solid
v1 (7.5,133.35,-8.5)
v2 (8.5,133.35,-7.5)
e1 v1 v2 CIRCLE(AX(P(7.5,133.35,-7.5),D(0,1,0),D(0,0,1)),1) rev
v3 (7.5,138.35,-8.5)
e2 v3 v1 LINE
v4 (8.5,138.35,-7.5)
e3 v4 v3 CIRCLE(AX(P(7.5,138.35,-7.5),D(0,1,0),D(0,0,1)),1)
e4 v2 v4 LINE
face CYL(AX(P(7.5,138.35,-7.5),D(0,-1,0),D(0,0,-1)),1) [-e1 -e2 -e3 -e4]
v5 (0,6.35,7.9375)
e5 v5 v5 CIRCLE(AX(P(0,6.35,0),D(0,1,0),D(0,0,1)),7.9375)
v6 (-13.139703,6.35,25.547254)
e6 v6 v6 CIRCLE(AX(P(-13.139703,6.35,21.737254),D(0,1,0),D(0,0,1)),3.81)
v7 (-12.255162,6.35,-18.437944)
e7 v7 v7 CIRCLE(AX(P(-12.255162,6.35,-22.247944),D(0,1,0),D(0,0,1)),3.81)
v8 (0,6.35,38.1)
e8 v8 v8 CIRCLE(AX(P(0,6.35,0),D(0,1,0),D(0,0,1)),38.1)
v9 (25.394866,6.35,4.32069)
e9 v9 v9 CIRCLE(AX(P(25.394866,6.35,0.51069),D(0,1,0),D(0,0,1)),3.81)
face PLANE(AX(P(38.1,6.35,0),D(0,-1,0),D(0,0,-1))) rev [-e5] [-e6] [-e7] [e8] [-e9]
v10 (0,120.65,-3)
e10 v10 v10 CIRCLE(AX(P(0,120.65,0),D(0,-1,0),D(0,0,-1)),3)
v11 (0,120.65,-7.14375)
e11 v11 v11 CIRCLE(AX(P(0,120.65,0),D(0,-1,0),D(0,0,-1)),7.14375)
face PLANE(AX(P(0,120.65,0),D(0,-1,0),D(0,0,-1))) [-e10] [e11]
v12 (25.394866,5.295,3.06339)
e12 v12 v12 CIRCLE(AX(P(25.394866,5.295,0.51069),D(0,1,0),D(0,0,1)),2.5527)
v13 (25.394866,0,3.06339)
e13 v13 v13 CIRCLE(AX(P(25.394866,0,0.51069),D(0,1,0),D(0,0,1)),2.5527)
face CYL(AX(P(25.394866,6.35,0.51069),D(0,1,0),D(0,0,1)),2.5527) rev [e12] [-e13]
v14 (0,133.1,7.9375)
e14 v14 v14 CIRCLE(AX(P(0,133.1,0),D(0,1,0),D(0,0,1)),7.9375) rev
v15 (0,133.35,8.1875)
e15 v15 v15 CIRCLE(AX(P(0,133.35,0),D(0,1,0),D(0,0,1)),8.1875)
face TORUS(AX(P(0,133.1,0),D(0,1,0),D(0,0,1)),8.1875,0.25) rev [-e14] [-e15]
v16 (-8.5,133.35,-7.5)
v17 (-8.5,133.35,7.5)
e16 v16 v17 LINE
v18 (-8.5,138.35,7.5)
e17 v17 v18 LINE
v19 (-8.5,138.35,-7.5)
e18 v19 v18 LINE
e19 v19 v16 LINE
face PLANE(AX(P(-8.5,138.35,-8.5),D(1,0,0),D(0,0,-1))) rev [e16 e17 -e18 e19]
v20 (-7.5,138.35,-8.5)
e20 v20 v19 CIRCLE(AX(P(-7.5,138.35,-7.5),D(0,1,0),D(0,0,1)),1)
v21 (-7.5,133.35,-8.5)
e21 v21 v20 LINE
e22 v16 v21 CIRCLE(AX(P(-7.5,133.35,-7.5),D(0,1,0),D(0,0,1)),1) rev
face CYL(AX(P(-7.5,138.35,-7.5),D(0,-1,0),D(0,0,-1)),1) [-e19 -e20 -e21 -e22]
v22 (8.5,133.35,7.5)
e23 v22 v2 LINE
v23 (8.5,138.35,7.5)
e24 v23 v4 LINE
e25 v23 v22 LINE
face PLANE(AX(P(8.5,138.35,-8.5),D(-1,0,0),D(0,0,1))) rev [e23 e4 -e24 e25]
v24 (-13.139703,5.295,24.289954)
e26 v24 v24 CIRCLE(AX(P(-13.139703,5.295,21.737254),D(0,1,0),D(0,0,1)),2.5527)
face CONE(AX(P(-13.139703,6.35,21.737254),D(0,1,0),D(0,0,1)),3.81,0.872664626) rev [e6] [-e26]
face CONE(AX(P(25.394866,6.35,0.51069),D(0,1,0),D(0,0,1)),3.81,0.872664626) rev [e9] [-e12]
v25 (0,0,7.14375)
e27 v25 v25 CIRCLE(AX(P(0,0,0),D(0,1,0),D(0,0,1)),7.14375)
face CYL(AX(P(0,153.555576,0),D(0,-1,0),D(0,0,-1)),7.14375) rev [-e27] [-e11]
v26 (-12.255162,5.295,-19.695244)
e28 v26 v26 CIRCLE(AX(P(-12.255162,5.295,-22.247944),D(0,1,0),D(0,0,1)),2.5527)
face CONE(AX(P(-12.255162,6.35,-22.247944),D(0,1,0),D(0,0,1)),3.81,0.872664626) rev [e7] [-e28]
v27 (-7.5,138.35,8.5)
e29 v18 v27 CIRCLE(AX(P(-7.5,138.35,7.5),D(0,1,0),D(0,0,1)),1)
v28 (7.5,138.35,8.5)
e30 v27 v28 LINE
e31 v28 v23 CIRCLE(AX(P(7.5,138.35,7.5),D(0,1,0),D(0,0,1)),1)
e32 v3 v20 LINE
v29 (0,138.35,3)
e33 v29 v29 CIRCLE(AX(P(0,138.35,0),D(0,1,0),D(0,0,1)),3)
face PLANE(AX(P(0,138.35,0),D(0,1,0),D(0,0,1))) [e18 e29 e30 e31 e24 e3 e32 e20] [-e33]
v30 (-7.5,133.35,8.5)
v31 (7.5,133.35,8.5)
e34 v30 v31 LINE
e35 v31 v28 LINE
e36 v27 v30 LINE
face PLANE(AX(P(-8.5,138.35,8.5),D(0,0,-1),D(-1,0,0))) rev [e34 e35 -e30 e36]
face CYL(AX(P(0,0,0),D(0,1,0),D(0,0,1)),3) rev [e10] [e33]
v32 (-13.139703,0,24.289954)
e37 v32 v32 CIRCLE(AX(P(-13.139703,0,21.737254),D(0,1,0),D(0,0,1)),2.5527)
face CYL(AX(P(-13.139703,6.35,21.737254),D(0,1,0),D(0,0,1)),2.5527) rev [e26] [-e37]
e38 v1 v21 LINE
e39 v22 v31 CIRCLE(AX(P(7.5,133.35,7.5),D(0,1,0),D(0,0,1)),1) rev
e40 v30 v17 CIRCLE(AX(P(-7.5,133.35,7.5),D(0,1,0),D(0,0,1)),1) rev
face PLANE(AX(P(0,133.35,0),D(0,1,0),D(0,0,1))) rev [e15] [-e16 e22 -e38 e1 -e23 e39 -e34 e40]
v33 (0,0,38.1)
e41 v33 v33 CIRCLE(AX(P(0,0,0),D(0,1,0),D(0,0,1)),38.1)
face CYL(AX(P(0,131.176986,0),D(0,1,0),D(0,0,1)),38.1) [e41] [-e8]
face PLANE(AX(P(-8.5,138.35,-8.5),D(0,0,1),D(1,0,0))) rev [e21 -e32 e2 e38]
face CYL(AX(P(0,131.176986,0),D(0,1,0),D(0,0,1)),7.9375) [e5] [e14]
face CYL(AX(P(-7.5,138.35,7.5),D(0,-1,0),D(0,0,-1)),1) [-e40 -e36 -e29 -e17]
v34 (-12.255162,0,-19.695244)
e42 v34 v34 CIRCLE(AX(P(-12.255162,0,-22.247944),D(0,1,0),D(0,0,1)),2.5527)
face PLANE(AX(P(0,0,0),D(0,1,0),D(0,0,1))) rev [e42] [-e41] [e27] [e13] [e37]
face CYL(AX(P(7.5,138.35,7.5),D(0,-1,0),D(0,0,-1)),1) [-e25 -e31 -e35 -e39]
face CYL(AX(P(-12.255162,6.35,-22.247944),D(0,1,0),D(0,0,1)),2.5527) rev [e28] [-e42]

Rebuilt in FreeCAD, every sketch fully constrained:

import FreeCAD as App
import Part
import Sketcher

V = App.Vector
Q = App.Units.Quantity


def edges_at(feature, points):
    """Names of the edges that pass closest to the given points."""
    edges = feature.Shape.Edges
    near = lambda p: min(range(len(edges)), key=lambda i: edges[i].distToShape(Part.Vertex(*p))[0])
    return sorted({f"Edge{near(p) + 1}" for p in points})

doc = App.newDocument("Part")
body = doc.addObject("PartDesign::Body", "Body")

# Sketch on XY plane
sketch1 = body.newObject("Sketcher::SketchObject", "Sketch")
sketch1.AttachmentSupport = (doc.getObject("XY_Plane"), [""])
sketch1.MapMode = "FlatFace"
sketch1.addGeometry([
    Part.LineSegment(V(0, 0, 0), V(38, 0, 0)),  # 0
    Part.LineSegment(V(38, 0, 0), V(38, 6, 0)),  # 1
    Part.LineSegment(V(38, 6, 0), V(8, 6, 0)),  # 2
    Part.LineSegment(V(8, 6, 0), V(8, 133, 0)),  # 3
    Part.LineSegment(V(8, 133, 0), V(0, 133, 0)),  # 4
    Part.LineSegment(V(0, 133, 0), V(0, 0, 0)),  # 5
], False)
sketch1.addConstraint([
    Sketcher.Constraint("Coincident", 0, 2, 1, 1),
    Sketcher.Constraint("Coincident", 1, 2, 2, 1),
    Sketcher.Constraint("Coincident", 2, 2, 3, 1),
    Sketcher.Constraint("Coincident", 3, 2, 4, 1),
    Sketcher.Constraint("Coincident", 4, 2, 5, 1),
    Sketcher.Constraint("Coincident", 5, 2, 0, 1),
    Sketcher.Constraint("Horizontal", 0),
    Sketcher.Constraint("Vertical", 1),
    Sketcher.Constraint("Horizontal", 2),
    Sketcher.Constraint("Vertical", 3),
    Sketcher.Constraint("Horizontal", 4),
    Sketcher.Constraint("Vertical", 5),
    Sketcher.Constraint("Coincident", 5, 2, -1, 1),
    Sketcher.Constraint("DistanceY", 3, 1, 3, 2, Q("5 in")),
    Sketcher.Constraint("DistanceX", 0, 1, 0, 2, Q("1.5 in")),
    Sketcher.Constraint("DistanceY", 1, 1, 1, 2, Q("0.25 in")),
    Sketcher.Constraint("DistanceX", 2, 2, 2, 1, Q("1.1875 in")),
])
revolution = body.newObject("PartDesign::Revolution", "Revolution")
revolution.Profile = sketch1
revolution.ReferenceAxis = (sketch1, ["V_Axis"])
revolution.Angle = 360

# Sketch on XZ plane
sketch2 = body.newObject("Sketcher::SketchObject", "Sketch001")
sketch2.AttachmentSupport = (doc.getObject("XZ_Plane"), [""])
sketch2.MapMode = "FlatFace"
sketch2.addGeometry(Part.Circle(V(0, 0, 0), V(0, 0, 1), 7), False)
sketch2.addConstraint([
    Sketcher.Constraint("Coincident", 0, 3, -1, 1),
    Sketcher.Constraint("Diameter", 0, Q("0.5625 in")),
])
pocket1 = body.newObject("PartDesign::Pocket", "Pocket")
pocket1.Profile = sketch2
pocket1.Length = Q("4.75 in")

# Sketch on XZ plane
sketch3 = body.newObject("Sketcher::SketchObject", "Sketch002")
sketch3.AttachmentSupport = (doc.getObject("XZ_Plane"), [""])
sketch3.MapMode = "FlatFace"
sketch3.AttachmentOffset = App.Placement(V(0, 0, -5.25 * 25.4), App.Rotation())
sketch3.addGeometry([
    Part.LineSegment(V(-8, -8, 0), V(-8, 8, 0)),
    Part.LineSegment(V(-8, 8, 0), V(8, 8, 0)),
    Part.LineSegment(V(8, 8, 0), V(8, -8, 0)),
    Part.LineSegment(V(8, -8, 0), V(-8, -8, 0)),
], False)
sketch3.addConstraint([
    Sketcher.Constraint("Coincident", 0, 2, 1, 1),
    Sketcher.Constraint("Coincident", 1, 2, 2, 1),
    Sketcher.Constraint("Coincident", 2, 2, 3, 1),
    Sketcher.Constraint("Coincident", 3, 2, 0, 1),
    Sketcher.Constraint("Vertical", 0),
    Sketcher.Constraint("Horizontal", 1),
    Sketcher.Constraint("Vertical", 2),
    Sketcher.Constraint("Horizontal", 3),
    Sketcher.Constraint("Symmetric", 0, 2, 2, 2, -1, 1),
    Sketcher.Constraint("Equal", 3, 0),
    Sketcher.Constraint("DistanceX", 1, 1, 1, 2, Q("17 mm")),
])
pad1 = body.newObject("PartDesign::Pad", "Pad")
pad1.Profile = sketch3
pad1.Length = 5
pad1.Reversed = True

# Sketch on XZ plane
sketch4 = body.newObject("Sketcher::SketchObject", "Sketch003")
sketch4.AttachmentSupport = (doc.getObject("XZ_Plane"), [""])
sketch4.MapMode = "FlatFace"
sketch4.AttachmentOffset = App.Placement(V(0, 0, -138.35), App.Rotation())
sketch4.addGeometry(Part.Circle(V(0, 0, 0), V(0, 0, 1), 3), False)
sketch4.addConstraint([
    Sketcher.Constraint("Coincident", 0, 3, -1, 1),
    Sketcher.Constraint("Diameter", 0, Q("6 mm")),
])
pocket2 = body.newObject("PartDesign::Pocket", "Pocket001")
pocket2.Profile = sketch4
pocket2.Type = "ThroughAll"
pocket2.Reversed = True
doc.recompute()

fillet = body.newObject("PartDesign::Fillet", "Fillet")
fillet.Base = (pocket2, edges_at(pocket2, [
    (8.5, 135.85, 8.5),
    (8.5, 135.85, -8.5),
    (-8.5, 135.85, -8.5),
    (-8.5, 135.85, 8.5),
]))
fillet.Radius = 1
doc.recompute()

fillet2 = body.newObject("PartDesign::Fillet", "Fillet001")
fillet2.Base = (fillet, edges_at(fillet, [(-7.938, 133.35, 0)]))
fillet2.Radius = 0.25

# Sketch on XZ plane
sketch5 = body.newObject("Sketcher::SketchObject", "Sketch004")
sketch5.AttachmentSupport = (doc.getObject("XZ_Plane"), [""])
sketch5.MapMode = "FlatFace"
sketch5.AttachmentOffset = App.Placement(V(0, 0, -0.25 * 25.4), App.Rotation())
sketch5.addGeometry([
    Part.Circle(V(-13.1, 21.7, 0), V(0, 0, 1), 2.6),
    Part.Circle(V(-12.3, -22.2, 0), V(0, 0, 1), 2.6),
    Part.Circle(V(25.4, 0.5, 0), V(0, 0, 1), 2.6),
], False)
sketch5.addConstraint([
    Sketcher.Constraint("Equal", 0, 1),
    Sketcher.Constraint("Equal", 1, 2),
    Sketcher.Constraint("Diameter", 0, Q("0.201 in")),
    Sketcher.Constraint("DistanceY", -1, 1, 2, 3, Q("0.51069 mm")),
    Sketcher.Constraint("DistanceX", 0, 3, 1, 3, Q("0.884541 mm")),
    Sketcher.Constraint("DistanceX", 0, 3, 2, 3, Q("38.534569 mm")),
    Sketcher.Constraint("DistanceX", 0, 3, -1, 1, Q("13.139703 mm")),
    Sketcher.Constraint("DistanceY", -1, 1, 0, 3, Q("21.737254 mm")),
    Sketcher.Constraint("DistanceY", 1, 3, -1, 1, Q("22.247944 mm")),
])
doc.recompute()
hole = body.newObject("PartDesign::Hole", "Hole")
hole.Profile = sketch5
hole.ThreadType = "None"
hole.Diameter = Q("0.201 in")
hole.DepthType = "ThroughAll"
hole.HoleCutType = "Countersink"
hole.HoleCutDiameter = Q("0.3 in")
hole.HoleCutCountersinkAngle = 100
hole.Reversed = True

doc.recompute()
